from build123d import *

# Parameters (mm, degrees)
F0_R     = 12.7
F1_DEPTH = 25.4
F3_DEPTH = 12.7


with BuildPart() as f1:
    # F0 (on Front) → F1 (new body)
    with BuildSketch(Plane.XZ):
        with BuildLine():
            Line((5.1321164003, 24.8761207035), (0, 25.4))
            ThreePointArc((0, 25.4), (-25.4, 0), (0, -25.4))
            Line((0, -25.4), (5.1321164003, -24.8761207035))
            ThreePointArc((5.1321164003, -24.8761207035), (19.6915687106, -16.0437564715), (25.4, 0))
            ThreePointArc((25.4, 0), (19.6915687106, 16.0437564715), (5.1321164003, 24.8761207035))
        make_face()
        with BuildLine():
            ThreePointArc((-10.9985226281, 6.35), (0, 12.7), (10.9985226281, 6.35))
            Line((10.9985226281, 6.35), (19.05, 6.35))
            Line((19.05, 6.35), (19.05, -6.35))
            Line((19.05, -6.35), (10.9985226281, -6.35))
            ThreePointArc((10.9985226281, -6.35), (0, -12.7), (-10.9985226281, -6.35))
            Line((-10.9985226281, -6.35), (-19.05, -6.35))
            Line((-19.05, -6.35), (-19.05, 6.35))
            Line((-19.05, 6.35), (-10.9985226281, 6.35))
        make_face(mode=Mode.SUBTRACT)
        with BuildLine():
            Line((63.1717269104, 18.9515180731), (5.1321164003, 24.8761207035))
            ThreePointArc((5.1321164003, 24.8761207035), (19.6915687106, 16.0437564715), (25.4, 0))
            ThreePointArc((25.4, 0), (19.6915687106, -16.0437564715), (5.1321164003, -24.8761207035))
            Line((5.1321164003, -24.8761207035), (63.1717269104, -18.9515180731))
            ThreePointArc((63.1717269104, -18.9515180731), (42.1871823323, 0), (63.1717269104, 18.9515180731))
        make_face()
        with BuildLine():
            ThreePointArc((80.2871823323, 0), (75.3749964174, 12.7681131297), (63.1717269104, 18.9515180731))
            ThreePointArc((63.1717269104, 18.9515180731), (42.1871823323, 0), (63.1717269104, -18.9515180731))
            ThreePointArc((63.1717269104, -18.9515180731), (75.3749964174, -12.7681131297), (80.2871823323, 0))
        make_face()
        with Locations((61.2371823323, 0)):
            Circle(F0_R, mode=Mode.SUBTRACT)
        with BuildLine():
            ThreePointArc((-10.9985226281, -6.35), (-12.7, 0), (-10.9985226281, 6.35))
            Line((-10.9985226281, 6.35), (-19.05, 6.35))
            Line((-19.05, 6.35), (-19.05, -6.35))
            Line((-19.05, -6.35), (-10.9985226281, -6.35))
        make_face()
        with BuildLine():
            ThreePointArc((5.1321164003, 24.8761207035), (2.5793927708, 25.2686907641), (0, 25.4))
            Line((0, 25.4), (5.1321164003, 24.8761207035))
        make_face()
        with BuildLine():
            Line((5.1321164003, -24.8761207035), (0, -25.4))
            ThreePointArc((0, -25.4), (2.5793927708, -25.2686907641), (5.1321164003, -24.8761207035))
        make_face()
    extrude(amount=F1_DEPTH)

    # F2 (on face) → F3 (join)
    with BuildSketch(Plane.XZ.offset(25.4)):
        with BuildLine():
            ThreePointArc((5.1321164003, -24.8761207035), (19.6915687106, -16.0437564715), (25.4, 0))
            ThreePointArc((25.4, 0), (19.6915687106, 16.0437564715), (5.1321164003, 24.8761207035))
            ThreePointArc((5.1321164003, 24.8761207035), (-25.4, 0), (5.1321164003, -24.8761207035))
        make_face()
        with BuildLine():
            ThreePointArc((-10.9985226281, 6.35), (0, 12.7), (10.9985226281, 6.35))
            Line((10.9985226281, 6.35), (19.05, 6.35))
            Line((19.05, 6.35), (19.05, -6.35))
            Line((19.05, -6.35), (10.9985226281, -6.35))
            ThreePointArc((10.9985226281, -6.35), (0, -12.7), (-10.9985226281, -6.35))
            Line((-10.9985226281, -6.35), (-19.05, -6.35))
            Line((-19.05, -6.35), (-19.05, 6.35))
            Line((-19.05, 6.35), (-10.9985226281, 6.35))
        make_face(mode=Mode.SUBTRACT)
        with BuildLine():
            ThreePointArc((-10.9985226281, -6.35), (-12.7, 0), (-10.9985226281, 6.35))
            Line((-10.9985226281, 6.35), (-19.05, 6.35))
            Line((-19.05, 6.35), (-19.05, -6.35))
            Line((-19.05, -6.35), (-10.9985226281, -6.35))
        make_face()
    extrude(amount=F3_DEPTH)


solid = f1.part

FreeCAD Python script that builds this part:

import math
import FreeCAD as App
import Part
import Sketcher
from FreeCAD import Vector
Q = App.Units.Quantity

doc = App.newDocument("Part")
body = doc.addObject("PartDesign::Body", "Body")

# Sketch on XZ plane
sketch1 = body.newObject("Sketcher::SketchObject", "Sketch")
sketch1.AttachmentSupport = (doc.getObject("XZ_Plane"), [""])
sketch1.MapMode = "FlatFace"
sketch1.addGeometry([
    Part.ArcOfCircle(Part.Circle(Vector(0, 0, 0), Vector(0, 0, 1), 25), math.radians(90), math.radians(270)),  # 0
    Part.ArcOfCircle(Part.Circle(Vector(0, 0, 0), Vector(0, 0, 1), 25), math.radians(-90), math.radians(-78.34)),  # 1
    Part.LineSegment(Vector(5, -25, 0), Vector(63, -19, 0)),  # 2
    Part.ArcOfCircle(Part.Circle(Vector(61, 0, 0), Vector(0, 0, 1), 19), math.radians(-84), math.radians(0)),  # 3
    Part.ArcOfCircle(Part.Circle(Vector(61, 0, 0), Vector(0, 0, 1), 19), math.radians(0), math.radians(84)),  # 4
    Part.LineSegment(Vector(63, 19, 0), Vector(5, 25, 0)),  # 5
    Part.ArcOfCircle(Part.Circle(Vector(0, 0, 0), Vector(0, 0, 1), 25), math.radians(78.34), math.radians(90)),  # 6
    Part.ArcOfCircle(Part.Circle(Vector(0, 0, 0), Vector(0, 0, 1), 13), math.radians(30), math.radians(150)),  # 7
    Part.LineSegment(Vector(11, 6, 0), Vector(19, 6, 0)),  # 8
    Part.LineSegment(Vector(19, 6, 0), Vector(19, -6, 0)),  # 9
    Part.LineSegment(Vector(19, -6, 0), Vector(11, -6, 0)),  # 10
    Part.ArcOfCircle(Part.Circle(Vector(0, 0, 0), Vector(0, 0, 1), 13), math.radians(-150), math.radians(-30)),  # 11
    Part.ArcOfCircle(Part.Circle(Vector(0, 0, 0), Vector(0, 0, 1), 13), math.radians(150), math.radians(210)),  # 12
    Part.Circle(Vector(61, 0, 0), Vector(0, 0, 1), 13),  # 13
], False)
sketch1.addConstraint([
    Sketcher.Constraint("Tangent", 0, 2, 1, 1),
    Sketcher.Constraint("Coincident", 1, 2, 2, 1),
    Sketcher.Constraint("Tangent", 2, 2, 3, 1),
    Sketcher.Constraint("Tangent", 3, 2, 4, 1),
    Sketcher.Constraint("Tangent", 4, 2, 5, 1),
    Sketcher.Constraint("Coincident", 5, 2, 6, 1),
    Sketcher.Constraint("Tangent", 6, 2, 0, 1),
    Sketcher.Constraint("Coincident", 7, 1, 8, 1),
    Sketcher.Constraint("Coincident", 8, 2, 9, 1),
    Sketcher.Constraint("Coincident", 9, 2, 10, 1),
    Sketcher.Constraint("Coincident", 10, 2, 11, 2),
    Sketcher.Constraint("Tangent", 11, 1, 12, 2),
    Sketcher.Constraint("Tangent", 12, 1, 7, 2),
    Sketcher.Constraint("Horizontal", 8),
    Sketcher.Constraint("Vertical", 9),
    Sketcher.Constraint("Horizontal", 10),
    Sketcher.Constraint("Coincident", 0, 3, -1, 1),
    Sketcher.Constraint("Coincident", 7, 3, -1, 1),
    Sketcher.Constraint("Coincident", 11, 3, -1, 1),
    Sketcher.Constraint("Coincident", 13, 3, 3, 3),
    Sketcher.Constraint("Equal", 0, 1),
    Sketcher.Constraint("Equal", 3, 4),
    Sketcher.Constraint("Equal", 1, 6),
    Sketcher.Constraint("Equal", 12, 13),
    Sketcher.Constraint("Symmetric", 2, 2, 4, 2, -1),
    Sketcher.Constraint("PointOnObject", 0, 2, -2),
    Sketcher.Constraint("PointOnObject", 3, 2, -1),
    Sketcher.Constraint("PointOnObject", 6, 2, -2),
    Sketcher.Constraint("Horizontal", 10, 2, 11, 1),
    Sketcher.Constraint("Horizontal", 8, 2, 12, 1),
    Sketcher.Constraint("Vertical", 7, 1, 10, 2),
    Sketcher.Constraint("Diameter", 13, Q("1 in")),
    Sketcher.Constraint("Radius", 0, Q("1 in")),
    Sketcher.Constraint("Radius", 3, Q("0.75 in")),
    Sketcher.Constraint("DistanceY", 9, 2, 9, 1, Q("0.5 in")),
    Sketcher.Constraint("DistanceX", -1, 1, 8, 2, Q("0.75 in")),
    Sketcher.Constraint("DistanceY", 1, 2, -1, 1, 24.876121),
    Sketcher.Constraint("DistanceX", 1, 2, 2, 2, 58.039611),
])
pad1 = body.newObject("PartDesign::Pad", "Pad")
pad1.Profile = sketch1
pad1.Length = Q("1 in")

# Sketch on XZ plane
sketch2 = body.newObject("Sketcher::SketchObject", "Sketch001")
sketch2.AttachmentSupport = (doc.getObject("XZ_Plane"), [""])
sketch2.MapMode = "FlatFace"
sketch2.AttachmentOffset = App.Placement(Vector(0, 0, 1 * 25.4), App.Rotation())
sketch2.addGeometry([
    Part.Circle(Vector(0, 0, 0), Vector(0, 0, 1), 25),  # 0
    Part.ArcOfCircle(Part.Circle(Vector(0, 0, 0), Vector(0, 0, 1), 13), math.radians(-150), math.radians(-30)),  # 1
    Part.ArcOfCircle(Part.Circle(Vector(0, 0, 0), Vector(0, 0, 1), 13), math.radians(150), math.radians(210)),  # 2
    Part.ArcOfCircle(Part.Circle(Vector(0, 0, 0), Vector(0, 0, 1), 13), math.radians(30), math.radians(150)),  # 3
    Part.LineSegment(Vector(11, 6, 0), Vector(19, 6, 0)),  # 4
    Part.LineSegment(Vector(19, 6, 0), Vector(19, -6, 0)),  # 5
    Part.LineSegment(Vector(19, -6, 0), Vector(11, -6, 0)),  # 6
], False)
sketch2.addConstraint([
    Sketcher.Constraint("Tangent", 1, 1, 2, 2),
    Sketcher.Constraint("Tangent", 2, 1, 3, 2),
    Sketcher.Constraint("Coincident", 3, 1, 4, 1),
    Sketcher.Constraint("Coincident", 4, 2, 5, 1),
    Sketcher.Constraint("Coincident", 5, 2, 6, 1),
    Sketcher.Constraint("Coincident", 6, 2, 1, 2),
    Sketcher.Constraint("Horizontal", 4),
    Sketcher.Constraint("Vertical", 5),
    Sketcher.Constraint("Horizontal", 6),
    Sketcher.Constraint("Coincident", 0, 3, -1, 1),
    Sketcher.Constraint("Coincident", 1, 3, -1, 1),
    Sketcher.Constraint("Coincident", 3, 3, -1, 1),
    Sketcher.Constraint("Horizontal", 2, 1, 3, 1),
    Sketcher.Constraint("Horizontal", 1, 1, 5, 2),
    Sketcher.Constraint("Vertical", 1, 1, 2, 1),
    Sketcher.Constraint("Diameter", 0, Q("2 in")),
    Sketcher.Constraint("Radius", 1, Q("0.5 in")),
    Sketcher.Constraint("DistanceY", 5, 2, 5, 1, Q("0.5 in")),
    Sketcher.Constraint("DistanceX", -1, 1, 4, 2, Q("0.75 in")),
])
pad2 = body.newObject("PartDesign::Pad", "Pad001")
pad2.Profile = sketch2
pad2.Length = Q("0.5 in")

doc.recompute()
